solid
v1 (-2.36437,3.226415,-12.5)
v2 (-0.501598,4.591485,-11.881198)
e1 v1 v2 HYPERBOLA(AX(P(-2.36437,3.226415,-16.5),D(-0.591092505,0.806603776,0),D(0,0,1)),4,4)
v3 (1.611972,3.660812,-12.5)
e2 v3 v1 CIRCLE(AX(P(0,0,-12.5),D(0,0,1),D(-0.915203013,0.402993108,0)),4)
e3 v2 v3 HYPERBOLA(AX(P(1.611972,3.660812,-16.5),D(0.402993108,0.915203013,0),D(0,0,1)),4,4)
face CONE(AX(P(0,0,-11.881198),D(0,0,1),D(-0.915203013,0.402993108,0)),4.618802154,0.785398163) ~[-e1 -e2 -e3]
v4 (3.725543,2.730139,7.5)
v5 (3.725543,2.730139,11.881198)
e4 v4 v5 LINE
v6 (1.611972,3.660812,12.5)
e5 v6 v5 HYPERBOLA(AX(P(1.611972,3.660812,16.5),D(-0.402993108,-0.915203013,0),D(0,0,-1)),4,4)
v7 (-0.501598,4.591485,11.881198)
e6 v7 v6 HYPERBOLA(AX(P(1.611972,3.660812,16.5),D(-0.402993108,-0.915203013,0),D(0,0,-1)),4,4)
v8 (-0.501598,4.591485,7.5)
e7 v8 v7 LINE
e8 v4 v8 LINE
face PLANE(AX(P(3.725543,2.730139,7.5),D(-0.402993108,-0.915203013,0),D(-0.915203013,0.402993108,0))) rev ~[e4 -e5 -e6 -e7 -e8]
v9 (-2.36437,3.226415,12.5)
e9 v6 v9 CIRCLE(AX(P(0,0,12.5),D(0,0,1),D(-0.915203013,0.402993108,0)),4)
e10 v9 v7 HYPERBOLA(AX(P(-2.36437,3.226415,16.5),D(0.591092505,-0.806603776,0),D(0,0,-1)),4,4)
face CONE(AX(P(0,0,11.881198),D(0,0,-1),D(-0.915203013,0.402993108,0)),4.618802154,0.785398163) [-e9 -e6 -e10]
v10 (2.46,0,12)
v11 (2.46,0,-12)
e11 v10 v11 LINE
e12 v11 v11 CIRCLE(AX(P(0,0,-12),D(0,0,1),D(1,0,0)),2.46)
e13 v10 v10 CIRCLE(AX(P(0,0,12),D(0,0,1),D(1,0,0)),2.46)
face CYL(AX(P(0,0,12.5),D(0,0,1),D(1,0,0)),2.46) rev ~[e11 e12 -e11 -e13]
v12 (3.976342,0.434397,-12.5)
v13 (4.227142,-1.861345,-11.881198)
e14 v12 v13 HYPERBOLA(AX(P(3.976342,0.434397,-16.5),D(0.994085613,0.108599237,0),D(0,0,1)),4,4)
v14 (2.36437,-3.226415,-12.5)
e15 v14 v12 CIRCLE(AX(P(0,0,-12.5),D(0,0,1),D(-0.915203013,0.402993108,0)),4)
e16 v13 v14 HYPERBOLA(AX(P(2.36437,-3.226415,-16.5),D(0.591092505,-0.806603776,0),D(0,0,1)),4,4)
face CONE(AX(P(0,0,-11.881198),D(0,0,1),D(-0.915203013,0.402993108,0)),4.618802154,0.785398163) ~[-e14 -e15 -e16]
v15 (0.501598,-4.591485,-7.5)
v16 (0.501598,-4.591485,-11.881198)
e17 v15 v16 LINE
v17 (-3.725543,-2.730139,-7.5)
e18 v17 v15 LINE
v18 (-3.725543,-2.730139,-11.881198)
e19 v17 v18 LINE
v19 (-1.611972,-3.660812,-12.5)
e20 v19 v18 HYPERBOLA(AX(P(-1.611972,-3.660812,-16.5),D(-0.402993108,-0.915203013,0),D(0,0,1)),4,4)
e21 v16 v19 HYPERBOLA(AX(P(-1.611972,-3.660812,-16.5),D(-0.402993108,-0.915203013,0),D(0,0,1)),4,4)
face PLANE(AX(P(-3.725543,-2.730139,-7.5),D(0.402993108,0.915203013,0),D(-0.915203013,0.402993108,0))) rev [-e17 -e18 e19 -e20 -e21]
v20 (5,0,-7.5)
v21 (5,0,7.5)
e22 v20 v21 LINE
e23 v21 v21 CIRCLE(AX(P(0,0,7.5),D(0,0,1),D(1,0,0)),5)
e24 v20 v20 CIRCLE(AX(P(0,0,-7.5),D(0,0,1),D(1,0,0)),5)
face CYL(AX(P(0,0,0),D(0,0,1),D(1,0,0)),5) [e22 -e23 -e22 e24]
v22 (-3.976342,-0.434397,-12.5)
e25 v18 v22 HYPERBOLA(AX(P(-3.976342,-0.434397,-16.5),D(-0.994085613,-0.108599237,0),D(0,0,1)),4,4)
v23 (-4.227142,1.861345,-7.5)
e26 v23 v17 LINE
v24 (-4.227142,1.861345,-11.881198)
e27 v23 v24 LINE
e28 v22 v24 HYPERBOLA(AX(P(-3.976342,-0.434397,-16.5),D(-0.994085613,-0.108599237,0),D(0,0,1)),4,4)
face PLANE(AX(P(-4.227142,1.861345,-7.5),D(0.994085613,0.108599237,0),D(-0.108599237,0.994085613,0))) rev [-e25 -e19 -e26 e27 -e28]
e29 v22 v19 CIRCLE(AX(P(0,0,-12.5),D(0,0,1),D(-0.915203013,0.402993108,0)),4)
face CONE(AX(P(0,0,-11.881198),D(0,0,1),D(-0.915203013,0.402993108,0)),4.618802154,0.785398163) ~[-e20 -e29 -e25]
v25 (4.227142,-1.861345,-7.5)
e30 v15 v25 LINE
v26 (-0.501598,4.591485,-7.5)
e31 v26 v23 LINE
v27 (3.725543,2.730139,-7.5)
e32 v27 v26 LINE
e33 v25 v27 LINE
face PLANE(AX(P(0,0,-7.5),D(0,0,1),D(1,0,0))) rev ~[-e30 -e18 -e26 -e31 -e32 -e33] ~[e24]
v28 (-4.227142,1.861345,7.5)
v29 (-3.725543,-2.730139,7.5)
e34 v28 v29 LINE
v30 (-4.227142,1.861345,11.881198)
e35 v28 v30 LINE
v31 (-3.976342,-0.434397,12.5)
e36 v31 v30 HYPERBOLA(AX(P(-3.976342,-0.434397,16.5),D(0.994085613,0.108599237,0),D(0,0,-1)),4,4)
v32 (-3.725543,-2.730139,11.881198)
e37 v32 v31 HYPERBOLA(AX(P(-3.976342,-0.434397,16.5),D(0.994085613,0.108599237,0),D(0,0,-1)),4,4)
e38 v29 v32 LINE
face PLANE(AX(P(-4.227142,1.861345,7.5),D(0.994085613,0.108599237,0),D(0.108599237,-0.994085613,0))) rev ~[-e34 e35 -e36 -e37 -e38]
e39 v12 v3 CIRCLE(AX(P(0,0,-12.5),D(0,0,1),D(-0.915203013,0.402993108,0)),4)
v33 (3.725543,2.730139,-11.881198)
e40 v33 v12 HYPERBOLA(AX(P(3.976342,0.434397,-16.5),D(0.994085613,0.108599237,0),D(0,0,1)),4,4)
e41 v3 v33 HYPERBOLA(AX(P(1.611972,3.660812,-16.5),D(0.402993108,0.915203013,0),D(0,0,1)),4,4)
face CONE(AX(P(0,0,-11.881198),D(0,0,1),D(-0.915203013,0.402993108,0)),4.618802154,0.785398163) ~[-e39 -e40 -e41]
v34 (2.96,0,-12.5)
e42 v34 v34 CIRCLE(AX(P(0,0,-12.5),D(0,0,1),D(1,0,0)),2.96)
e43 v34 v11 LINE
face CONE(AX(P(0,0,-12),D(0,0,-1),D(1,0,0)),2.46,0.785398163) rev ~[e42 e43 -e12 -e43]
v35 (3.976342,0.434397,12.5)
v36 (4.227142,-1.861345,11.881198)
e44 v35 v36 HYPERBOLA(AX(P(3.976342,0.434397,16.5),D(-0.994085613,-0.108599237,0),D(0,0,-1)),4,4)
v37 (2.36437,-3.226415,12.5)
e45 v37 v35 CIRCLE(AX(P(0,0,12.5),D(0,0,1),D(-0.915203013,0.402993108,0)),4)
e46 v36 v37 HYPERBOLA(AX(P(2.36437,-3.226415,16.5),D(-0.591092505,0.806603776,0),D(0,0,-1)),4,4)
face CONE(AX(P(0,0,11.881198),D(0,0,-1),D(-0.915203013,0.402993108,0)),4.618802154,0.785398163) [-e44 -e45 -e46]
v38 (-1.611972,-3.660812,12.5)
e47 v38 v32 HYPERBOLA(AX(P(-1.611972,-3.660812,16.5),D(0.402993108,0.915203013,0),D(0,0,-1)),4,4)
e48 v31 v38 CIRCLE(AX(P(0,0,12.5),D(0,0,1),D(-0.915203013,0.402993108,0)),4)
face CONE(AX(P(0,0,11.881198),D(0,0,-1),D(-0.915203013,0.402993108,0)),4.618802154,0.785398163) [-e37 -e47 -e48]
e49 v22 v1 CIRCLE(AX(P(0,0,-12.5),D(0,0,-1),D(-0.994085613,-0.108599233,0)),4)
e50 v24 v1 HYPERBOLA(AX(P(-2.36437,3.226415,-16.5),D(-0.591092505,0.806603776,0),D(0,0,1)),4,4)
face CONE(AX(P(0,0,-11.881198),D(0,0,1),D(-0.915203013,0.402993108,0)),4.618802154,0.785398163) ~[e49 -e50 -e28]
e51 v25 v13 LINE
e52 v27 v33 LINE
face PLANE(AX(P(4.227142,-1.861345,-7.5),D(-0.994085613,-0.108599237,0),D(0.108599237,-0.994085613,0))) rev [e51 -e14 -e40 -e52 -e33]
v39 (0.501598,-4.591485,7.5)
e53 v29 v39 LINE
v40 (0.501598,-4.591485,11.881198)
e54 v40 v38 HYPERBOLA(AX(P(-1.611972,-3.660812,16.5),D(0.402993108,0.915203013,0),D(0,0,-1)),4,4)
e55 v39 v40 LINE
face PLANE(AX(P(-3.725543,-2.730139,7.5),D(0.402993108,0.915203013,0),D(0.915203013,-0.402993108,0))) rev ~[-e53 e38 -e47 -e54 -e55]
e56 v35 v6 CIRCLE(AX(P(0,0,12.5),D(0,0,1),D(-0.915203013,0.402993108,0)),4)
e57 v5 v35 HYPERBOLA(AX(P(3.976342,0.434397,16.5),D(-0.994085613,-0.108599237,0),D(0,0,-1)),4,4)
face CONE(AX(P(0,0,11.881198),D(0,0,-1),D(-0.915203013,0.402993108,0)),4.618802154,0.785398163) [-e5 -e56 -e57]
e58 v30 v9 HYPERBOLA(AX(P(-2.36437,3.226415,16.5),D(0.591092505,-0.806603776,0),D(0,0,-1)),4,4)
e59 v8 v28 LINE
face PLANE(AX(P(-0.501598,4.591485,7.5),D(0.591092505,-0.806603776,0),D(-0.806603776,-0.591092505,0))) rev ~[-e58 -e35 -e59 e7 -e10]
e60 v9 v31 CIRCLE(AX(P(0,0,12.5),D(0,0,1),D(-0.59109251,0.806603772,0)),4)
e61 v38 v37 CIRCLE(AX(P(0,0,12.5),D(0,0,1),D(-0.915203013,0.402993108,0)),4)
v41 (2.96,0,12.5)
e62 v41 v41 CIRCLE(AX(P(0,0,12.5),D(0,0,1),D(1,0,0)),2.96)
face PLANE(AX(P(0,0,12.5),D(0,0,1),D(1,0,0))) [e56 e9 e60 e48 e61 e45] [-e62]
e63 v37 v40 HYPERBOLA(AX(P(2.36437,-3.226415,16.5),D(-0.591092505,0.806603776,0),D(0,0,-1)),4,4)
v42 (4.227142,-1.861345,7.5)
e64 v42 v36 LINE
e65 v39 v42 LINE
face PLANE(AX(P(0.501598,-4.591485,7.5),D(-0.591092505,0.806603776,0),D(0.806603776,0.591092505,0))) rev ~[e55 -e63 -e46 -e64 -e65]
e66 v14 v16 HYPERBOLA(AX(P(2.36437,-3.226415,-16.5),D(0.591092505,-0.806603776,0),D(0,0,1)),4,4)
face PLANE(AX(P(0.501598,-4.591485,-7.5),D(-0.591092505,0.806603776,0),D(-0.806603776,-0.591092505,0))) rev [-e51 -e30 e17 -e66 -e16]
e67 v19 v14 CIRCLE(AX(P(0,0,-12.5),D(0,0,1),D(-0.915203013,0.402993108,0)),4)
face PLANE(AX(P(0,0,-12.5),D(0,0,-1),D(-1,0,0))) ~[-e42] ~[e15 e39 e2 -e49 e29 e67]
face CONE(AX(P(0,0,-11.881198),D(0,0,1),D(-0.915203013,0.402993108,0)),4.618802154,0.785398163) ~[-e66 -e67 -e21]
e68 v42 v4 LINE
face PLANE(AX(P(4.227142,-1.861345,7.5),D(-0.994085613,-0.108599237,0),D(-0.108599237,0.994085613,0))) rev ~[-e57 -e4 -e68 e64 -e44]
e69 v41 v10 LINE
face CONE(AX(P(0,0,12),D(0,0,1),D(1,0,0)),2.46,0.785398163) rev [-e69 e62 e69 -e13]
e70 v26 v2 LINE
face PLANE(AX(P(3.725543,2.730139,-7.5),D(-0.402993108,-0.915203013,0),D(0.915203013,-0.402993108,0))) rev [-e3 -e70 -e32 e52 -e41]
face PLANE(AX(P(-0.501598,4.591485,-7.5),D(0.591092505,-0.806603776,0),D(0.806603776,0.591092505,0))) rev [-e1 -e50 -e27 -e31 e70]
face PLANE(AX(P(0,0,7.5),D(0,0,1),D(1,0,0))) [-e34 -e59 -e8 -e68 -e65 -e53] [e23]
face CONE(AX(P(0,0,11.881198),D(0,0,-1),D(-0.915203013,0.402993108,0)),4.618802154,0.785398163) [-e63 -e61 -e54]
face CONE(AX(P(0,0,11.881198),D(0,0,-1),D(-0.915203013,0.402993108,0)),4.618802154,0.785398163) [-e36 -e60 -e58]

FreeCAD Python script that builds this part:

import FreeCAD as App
import Part
import Sketcher


def edges_at(feature, points):
    """Names of the edges that pass closest to the given points."""
    edges = feature.Shape.Edges
    near = lambda p: min(range(len(edges)), key=lambda i: edges[i].distToShape(Part.Vertex(*p))[0])
    return sorted({f"Edge{near(p) + 1}" for p in points})

doc = App.newDocument("Part")
body = doc.addObject("PartDesign::Body", "Body")

sketch1 = body.newObject("Sketcher::SketchObject", "Sketch")
sketch1.AttachmentSupport = (doc.getObject("XY_Plane"), [""])
sketch1.MapMode = "FlatFace"
sketch1.addGeometry(Part.Circle(App.Vector(0, 0, 0), App.Vector(0, 0, 1), 5), False)
sketch1.addConstraint([
    Sketcher.Constraint("Coincident", 0, 3, -1, 1),
    Sketcher.Constraint("Diameter", 0, 10.0),
])
pad1 = body.newObject("PartDesign::Pad", "Pad")
pad1.Profile = sketch1
pad1.Length = 15
pad1.Midplane = True

sketch2 = body.newObject("Sketcher::SketchObject", "Sketch001")
sketch2.AttachmentSupport = (doc.getObject("XY_Plane"), [""])
sketch2.MapMode = "FlatFace"
sketch2.AttachmentOffset = App.Placement(App.Vector(0, 0, 7.5), App.Rotation())
sketch2.addGeometry([
    Part.LineSegment(App.Vector(0.5, -4.6, 0), App.Vector(4.2, -1.9, 0)),
    Part.LineSegment(App.Vector(4.2, -1.9, 0), App.Vector(3.7, 2.7, 0)),
    Part.LineSegment(App.Vector(3.7, 2.7, 0), App.Vector(-0.5, 4.6, 0)),
    Part.LineSegment(App.Vector(-0.5, 4.6, 0), App.Vector(-4.2, 1.9, 0)),
    Part.LineSegment(App.Vector(-4.2, 1.9, 0), App.Vector(-3.7, -2.7, 0)),
    Part.LineSegment(App.Vector(-3.7, -2.7, 0), App.Vector(0.5, -4.6, 0)),
], False)
sketch2.addConstraint([
    Sketcher.Constraint("Coincident", 0, 2, 1, 1),
    Sketcher.Constraint("Coincident", 1, 2, 2, 1),
    Sketcher.Constraint("Coincident", 2, 2, 3, 1),
    Sketcher.Constraint("Coincident", 3, 2, 4, 1),
    Sketcher.Constraint("Coincident", 4, 2, 5, 1),
    Sketcher.Constraint("Coincident", 5, 2, 0, 1),
    Sketcher.Constraint("Symmetric", 0, 2, 3, 2, -1, 1),
    Sketcher.Constraint("Symmetric", 1, 2, 4, 2, -1, 1),
    Sketcher.Constraint("Symmetric", 2, 2, 5, 2, -1, 1),
    Sketcher.Constraint("Equal", 0, 1),
    Sketcher.Constraint("Equal", 1, 2),
    Sketcher.Constraint("DistanceX", 2, 2, -1, 1, 0.501598),
    Sketcher.Constraint("DistanceX", 1, 2, 0, 2, 0.501598),
    Sketcher.Constraint("DistanceX", -1, 1, 0, 2, 4.227142),
    Sketcher.Constraint("DistanceY", -1, 1, 1, 2, 2.730139),
])
pad2 = body.newObject("PartDesign::Pad", "Pad001")
pad2.Profile = sketch2
pad2.Length = 5
doc.recompute()

mirrored = body.newObject("PartDesign::Mirrored", "Mirrored")
mirrored.Originals = [pad2]
mirrored.MirrorPlane = (doc.getObject("XY_Plane"), [""])
body.Tip = mirrored

sketch3 = body.newObject("Sketcher::SketchObject", "Sketch002")
sketch3.AttachmentSupport = (doc.getObject("XY_Plane"), [""])
sketch3.MapMode = "FlatFace"
sketch3.AttachmentOffset = App.Placement(App.Vector(0, 0, 12.5), App.Rotation())
sketch3.addGeometry(Part.Circle(App.Vector(0, 0, 0), App.Vector(0, 0, 1), 2.5), False)
sketch3.addConstraint([
    Sketcher.Constraint("Coincident", 0, 3, -1, 1),
    Sketcher.Constraint("Diameter", 0, 4.92),
])
pocket1 = body.newObject("PartDesign::Pocket", "Pocket")
pocket1.Profile = sketch3
pocket1.Type = "ThroughAll"
pocket1.Midplane = True
doc.recompute()

chamfer = body.newObject("PartDesign::Chamfer", "Chamfer")
chamfer.Base = (pocket1, edges_at(pocket1, [(-2.46, 0, 12.5), (-2.46, 0, -12.5)]))
chamfer.Size = 0.5

sketch4 = body.newObject("Sketcher::SketchObject", "Sketch003")
sketch4.Placement = App.Placement(App.Vector(0, 0, 0), App.Rotation(App.Vector(-0.915203013, 0.402993108, 0), App.Vector(0, 0, -1), App.Vector(-0.402993108, -0.915203013, 0), "ZXY"))
sketch4.addGeometry([
    Part.LineSegment(App.Vector(4.6, 12.5, 0), App.Vector(4, 12.5, 0)),
    Part.LineSegment(App.Vector(4, 12.5, 0), App.Vector(4.6, 11.9, 0)),
    Part.LineSegment(App.Vector(4.6, 11.9, 0), App.Vector(4.6, 12.5, 0)),
], False)
sketch4.addConstraint([
    Sketcher.Constraint("Coincident", 0, 2, 1, 1),
    Sketcher.Constraint("Coincident", 1, 2, 2, 1),
    Sketcher.Constraint("Coincident", 2, 2, 0, 1),
    Sketcher.Constraint("Horizontal", 0),
    Sketcher.Constraint("Vertical", 2),
    Sketcher.Constraint("Equal", 0, 2),
    Sketcher.Constraint("DistanceX", -1, 1, 0, 2, 4.0),
    Sketcher.Constraint("DistanceY", -1, 1, 0, 2, 12.5),
    Sketcher.Constraint("Distance", 1, 0.875118),
])
groove = body.newObject("PartDesign::Groove", "Groove")
groove.Profile = sketch4
groove.ReferenceAxis = (sketch4, ["V_Axis"])
groove.Angle = 360
doc.recompute()

mirrored2 = body.newObject("PartDesign::Mirrored", "Mirrored001")
mirrored2.Originals = [groove]
mirrored2.MirrorPlane = (doc.getObject("XY_Plane"), [""])
body.Tip = mirrored2

doc.recompute()
